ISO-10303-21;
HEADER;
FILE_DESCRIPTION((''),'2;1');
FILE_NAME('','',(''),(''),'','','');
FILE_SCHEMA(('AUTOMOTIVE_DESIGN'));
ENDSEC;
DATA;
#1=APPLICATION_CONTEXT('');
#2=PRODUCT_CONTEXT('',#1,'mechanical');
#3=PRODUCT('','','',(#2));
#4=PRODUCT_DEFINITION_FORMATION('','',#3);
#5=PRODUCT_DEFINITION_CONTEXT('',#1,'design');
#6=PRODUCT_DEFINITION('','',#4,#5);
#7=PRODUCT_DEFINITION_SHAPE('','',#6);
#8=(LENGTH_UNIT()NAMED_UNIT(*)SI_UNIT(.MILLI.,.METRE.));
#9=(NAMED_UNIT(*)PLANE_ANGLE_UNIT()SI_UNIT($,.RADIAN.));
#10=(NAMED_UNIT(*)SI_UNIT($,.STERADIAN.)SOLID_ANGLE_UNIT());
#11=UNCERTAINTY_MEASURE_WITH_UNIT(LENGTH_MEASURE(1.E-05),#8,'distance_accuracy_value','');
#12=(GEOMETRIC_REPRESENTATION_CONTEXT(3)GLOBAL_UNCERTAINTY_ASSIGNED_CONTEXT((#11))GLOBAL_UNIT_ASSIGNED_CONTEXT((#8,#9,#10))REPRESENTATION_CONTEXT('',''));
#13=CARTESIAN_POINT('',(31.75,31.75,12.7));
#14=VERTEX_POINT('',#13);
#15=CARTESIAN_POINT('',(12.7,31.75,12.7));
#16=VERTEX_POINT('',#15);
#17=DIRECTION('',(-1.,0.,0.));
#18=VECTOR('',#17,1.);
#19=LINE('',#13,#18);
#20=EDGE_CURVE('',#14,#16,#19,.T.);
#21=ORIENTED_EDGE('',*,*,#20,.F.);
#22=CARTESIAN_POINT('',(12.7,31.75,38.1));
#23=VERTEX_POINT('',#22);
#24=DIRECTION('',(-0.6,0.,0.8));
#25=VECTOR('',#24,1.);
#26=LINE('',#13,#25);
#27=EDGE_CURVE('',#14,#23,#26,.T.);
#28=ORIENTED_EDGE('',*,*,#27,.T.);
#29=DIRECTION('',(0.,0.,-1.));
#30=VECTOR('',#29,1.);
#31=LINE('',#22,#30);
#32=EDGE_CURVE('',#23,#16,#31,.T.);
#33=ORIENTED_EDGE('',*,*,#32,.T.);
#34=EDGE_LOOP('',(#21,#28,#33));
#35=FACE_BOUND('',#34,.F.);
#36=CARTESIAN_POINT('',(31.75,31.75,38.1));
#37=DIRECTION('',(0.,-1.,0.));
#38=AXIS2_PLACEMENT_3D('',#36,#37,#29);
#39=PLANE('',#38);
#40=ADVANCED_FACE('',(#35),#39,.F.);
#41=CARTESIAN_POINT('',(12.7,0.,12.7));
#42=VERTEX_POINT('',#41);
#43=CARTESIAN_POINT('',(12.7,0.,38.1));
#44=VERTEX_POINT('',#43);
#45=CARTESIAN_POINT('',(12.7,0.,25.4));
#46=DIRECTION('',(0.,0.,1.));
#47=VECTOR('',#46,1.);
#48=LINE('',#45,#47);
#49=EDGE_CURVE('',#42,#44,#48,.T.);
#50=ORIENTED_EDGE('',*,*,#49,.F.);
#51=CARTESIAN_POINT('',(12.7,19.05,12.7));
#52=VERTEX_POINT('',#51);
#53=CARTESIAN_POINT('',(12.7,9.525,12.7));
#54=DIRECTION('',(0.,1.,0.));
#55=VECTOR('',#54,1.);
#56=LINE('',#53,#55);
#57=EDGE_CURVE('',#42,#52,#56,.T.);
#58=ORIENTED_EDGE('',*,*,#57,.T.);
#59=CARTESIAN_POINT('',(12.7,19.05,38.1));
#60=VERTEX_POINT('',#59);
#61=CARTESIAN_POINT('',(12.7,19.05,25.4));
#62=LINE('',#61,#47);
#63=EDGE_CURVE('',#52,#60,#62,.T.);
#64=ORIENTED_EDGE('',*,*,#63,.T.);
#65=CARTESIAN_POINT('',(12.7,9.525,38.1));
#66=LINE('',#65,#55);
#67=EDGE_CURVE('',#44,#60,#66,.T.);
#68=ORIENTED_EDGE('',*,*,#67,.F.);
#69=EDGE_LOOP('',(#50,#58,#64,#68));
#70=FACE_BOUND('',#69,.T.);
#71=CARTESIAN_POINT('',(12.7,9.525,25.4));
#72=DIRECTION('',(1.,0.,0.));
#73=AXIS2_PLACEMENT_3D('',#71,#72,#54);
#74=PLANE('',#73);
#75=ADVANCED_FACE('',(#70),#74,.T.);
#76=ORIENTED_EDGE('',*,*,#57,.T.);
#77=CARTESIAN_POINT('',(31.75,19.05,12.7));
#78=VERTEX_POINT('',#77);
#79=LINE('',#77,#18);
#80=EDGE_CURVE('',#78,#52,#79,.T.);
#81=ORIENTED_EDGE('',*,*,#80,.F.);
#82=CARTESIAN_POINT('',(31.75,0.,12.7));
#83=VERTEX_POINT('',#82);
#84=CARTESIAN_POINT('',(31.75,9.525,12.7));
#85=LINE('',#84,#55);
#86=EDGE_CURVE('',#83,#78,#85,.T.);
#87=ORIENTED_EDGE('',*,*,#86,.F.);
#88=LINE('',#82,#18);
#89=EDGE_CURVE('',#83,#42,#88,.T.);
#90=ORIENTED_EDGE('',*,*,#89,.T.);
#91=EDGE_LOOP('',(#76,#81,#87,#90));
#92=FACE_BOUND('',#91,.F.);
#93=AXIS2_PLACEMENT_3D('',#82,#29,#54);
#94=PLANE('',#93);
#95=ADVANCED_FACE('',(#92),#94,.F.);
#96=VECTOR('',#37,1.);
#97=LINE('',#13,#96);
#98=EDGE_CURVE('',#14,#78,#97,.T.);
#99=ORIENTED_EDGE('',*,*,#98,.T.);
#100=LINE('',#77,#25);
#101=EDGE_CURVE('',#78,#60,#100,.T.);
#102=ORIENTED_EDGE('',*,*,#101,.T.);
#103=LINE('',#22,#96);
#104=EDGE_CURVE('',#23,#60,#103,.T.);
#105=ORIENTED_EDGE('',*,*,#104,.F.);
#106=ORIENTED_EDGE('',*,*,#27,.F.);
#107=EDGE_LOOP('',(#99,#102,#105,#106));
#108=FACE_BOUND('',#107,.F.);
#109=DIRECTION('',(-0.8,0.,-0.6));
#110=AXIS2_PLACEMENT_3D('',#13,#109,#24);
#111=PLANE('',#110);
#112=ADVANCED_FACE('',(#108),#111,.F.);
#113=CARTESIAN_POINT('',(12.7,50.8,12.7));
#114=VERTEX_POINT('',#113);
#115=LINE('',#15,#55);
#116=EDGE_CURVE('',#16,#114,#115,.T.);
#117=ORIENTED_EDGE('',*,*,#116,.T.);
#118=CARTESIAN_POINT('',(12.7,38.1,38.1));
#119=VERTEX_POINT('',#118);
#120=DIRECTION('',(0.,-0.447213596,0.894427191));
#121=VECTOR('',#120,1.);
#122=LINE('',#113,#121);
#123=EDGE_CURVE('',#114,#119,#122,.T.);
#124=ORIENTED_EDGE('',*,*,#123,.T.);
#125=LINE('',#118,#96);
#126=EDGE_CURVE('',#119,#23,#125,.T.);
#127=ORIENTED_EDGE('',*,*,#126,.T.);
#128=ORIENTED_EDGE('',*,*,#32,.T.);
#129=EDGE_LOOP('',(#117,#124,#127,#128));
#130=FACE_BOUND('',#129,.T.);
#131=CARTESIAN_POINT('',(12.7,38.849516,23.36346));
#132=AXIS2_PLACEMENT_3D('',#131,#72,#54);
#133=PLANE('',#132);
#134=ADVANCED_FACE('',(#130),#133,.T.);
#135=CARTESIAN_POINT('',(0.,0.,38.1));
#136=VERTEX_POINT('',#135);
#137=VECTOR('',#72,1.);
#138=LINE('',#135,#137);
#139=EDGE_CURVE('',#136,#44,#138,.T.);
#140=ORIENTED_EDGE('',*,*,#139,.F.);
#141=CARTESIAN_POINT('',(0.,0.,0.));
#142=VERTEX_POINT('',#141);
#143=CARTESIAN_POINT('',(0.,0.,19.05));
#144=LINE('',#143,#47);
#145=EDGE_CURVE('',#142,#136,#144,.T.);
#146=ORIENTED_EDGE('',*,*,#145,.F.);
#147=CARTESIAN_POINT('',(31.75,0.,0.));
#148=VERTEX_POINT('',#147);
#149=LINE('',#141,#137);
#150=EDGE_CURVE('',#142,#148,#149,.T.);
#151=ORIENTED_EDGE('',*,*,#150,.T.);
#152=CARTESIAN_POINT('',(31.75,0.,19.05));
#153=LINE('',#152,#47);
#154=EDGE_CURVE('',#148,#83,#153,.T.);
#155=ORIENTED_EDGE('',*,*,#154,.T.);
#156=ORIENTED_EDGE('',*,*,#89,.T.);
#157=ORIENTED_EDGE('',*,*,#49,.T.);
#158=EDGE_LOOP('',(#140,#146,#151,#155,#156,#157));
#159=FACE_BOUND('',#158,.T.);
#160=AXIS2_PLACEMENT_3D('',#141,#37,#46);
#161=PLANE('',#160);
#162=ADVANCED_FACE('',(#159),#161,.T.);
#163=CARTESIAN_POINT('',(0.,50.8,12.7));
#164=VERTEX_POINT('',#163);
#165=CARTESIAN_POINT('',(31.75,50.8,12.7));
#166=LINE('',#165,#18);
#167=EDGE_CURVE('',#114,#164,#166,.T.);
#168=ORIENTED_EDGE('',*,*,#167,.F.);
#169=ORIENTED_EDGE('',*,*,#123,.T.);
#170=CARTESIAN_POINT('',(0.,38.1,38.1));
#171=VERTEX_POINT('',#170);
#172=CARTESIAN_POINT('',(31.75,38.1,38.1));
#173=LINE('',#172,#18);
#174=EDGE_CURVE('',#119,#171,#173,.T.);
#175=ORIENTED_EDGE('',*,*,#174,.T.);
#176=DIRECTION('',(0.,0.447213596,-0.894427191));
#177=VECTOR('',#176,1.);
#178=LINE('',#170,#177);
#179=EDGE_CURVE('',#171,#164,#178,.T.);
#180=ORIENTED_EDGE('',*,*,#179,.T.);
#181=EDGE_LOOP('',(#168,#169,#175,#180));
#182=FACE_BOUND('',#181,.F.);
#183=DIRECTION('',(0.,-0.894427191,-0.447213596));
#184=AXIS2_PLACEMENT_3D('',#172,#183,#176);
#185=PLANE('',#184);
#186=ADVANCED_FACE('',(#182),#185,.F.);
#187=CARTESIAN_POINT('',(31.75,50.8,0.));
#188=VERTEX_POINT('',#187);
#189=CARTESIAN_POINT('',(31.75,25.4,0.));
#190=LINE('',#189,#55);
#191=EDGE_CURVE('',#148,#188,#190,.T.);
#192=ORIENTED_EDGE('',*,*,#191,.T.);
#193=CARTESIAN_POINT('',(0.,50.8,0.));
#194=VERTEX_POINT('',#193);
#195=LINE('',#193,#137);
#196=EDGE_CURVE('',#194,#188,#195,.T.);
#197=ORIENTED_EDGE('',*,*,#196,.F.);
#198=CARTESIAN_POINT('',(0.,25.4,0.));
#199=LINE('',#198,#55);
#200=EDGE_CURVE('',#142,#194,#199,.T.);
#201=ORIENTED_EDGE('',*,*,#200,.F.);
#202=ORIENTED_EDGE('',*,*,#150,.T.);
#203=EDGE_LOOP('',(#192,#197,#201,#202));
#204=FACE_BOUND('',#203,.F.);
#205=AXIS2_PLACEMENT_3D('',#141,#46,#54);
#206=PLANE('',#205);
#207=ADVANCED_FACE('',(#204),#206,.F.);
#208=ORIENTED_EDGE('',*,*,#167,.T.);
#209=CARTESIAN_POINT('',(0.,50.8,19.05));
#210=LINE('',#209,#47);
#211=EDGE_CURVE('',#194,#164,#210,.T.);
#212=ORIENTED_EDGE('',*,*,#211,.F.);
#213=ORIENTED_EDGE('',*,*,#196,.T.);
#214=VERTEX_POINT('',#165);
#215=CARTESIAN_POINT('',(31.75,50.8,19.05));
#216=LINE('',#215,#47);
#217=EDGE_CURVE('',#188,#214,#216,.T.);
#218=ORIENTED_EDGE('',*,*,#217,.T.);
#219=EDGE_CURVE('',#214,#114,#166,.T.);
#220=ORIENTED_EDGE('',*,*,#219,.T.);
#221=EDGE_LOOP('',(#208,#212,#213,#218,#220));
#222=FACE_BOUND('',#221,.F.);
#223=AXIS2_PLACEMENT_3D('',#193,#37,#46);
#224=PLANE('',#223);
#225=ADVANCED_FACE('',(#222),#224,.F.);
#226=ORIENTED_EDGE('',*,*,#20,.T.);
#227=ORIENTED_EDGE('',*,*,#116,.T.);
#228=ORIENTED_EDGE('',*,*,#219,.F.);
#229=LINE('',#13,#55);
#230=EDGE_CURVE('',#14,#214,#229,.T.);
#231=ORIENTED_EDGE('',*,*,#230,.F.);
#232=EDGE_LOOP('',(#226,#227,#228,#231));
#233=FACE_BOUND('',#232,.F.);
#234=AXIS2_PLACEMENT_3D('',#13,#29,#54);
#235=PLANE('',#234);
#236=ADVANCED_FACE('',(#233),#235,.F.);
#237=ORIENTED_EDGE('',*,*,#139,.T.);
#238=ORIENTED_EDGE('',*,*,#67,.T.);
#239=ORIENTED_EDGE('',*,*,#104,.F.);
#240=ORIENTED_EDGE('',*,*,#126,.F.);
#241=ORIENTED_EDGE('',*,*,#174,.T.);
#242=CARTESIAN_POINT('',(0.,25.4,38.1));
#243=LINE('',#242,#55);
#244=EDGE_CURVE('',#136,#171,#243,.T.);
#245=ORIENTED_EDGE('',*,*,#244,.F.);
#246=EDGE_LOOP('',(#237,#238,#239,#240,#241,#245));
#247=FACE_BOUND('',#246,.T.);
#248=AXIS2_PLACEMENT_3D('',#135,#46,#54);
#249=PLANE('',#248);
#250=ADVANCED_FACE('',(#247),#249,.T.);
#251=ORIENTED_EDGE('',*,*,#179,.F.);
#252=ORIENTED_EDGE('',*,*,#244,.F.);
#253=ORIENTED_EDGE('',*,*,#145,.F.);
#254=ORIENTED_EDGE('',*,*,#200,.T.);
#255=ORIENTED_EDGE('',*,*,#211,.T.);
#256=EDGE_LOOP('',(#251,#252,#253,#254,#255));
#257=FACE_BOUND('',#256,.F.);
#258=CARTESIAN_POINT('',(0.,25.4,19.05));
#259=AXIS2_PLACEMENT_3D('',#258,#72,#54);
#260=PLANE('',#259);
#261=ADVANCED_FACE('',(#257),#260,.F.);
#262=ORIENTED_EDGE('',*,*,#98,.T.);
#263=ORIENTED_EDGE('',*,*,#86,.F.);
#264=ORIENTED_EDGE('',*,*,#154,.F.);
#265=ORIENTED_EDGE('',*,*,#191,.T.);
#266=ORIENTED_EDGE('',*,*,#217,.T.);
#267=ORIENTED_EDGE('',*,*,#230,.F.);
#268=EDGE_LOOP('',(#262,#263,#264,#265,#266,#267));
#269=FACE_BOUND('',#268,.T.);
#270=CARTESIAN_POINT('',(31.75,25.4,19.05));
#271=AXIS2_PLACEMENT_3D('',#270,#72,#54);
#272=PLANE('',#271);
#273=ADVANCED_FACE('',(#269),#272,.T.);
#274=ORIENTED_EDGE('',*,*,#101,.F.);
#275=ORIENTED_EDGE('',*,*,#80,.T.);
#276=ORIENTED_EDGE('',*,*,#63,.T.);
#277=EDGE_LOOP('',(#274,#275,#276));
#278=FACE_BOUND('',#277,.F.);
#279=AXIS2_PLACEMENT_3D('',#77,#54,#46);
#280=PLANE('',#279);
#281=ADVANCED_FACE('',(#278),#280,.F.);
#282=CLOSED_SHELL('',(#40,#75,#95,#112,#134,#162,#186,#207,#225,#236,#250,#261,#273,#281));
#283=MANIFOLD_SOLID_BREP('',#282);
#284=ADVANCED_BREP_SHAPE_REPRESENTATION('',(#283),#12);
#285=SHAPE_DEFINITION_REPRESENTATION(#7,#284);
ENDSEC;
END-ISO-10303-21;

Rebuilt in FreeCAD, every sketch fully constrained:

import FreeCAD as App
import Part
import Sketcher
from FreeCAD import Vector
Q = App.Units.Quantity


def add_polygon(sketch, points):
    """Adds a closed chain of lines whose ends are joined by coincident constraints."""
    first, n = sketch.GeometryCount, len(points)
    for a, b in zip(points, points[1:] + points[:1]):
        sketch.addGeometry(Part.LineSegment(App.Vector(*a, 0), App.Vector(*b, 0)), False)
    for i in range(n):
        sketch.addConstraint(Sketcher.Constraint("Coincident", first + i, 2, first + (i + 1) % n, 1))

doc = App.newDocument("Part")
body = doc.addObject("PartDesign::Body", "Body")

# Sketch on YZ plane
sketch1 = body.newObject("Sketcher::SketchObject", "Sketch")
sketch1.AttachmentSupport = (doc.getObject("YZ_Plane"), [""])
sketch1.MapMode = "FlatFace"
add_polygon(sketch1, [(0, 38), (0, 0), (51, 0), (51, 38)])  # lines 0-3
sketch1.addConstraint([
    Sketcher.Constraint("Vertical", 0),
    Sketcher.Constraint("Horizontal", 1),
    Sketcher.Constraint("Vertical", 2),
    Sketcher.Constraint("Horizontal", 3),
    Sketcher.Constraint("Coincident", 0, 2, -1, 1),
    Sketcher.Constraint("DistanceX", 1, 1, 1, 2, Q("2 in")),
    Sketcher.Constraint("DistanceY", 0, 2, 0, 1, Q("1.5 in")),
])
pad1 = body.newObject("PartDesign::Pad", "Pad")
pad1.Profile = sketch1
pad1.Length = Q("1.25 in")

# Sketch on YZ plane
sketch2 = body.newObject("Sketcher::SketchObject", "Sketch001")
sketch2.AttachmentSupport = (doc.getObject("YZ_Plane"), [""])
sketch2.MapMode = "FlatFace"
sketch2.AttachmentOffset = App.Placement(Vector(0, 0, 1.25 * 25.4), App.Rotation())
add_polygon(sketch2, [(51, 13), (51, 38), (38, 38)])  # lines 0-2
sketch2.addConstraint([
    Sketcher.Constraint("Vertical", 0),
    Sketcher.Constraint("Horizontal", 1),
    Sketcher.Constraint("DistanceY", 0, 1, 0, 2, Q("1 in")),
    Sketcher.Constraint("DistanceX", 1, 2, 1, 1, Q("0.5 in")),
    Sketcher.Constraint("DistanceX", -1, 1, 0, 2, Q("2 in")),
    Sketcher.Constraint("DistanceY", -1, 1, 0, 2, Q("1.5 in")),
])
pocket1 = body.newObject("PartDesign::Pocket", "Pocket")
pocket1.Profile = sketch2
pocket1.Length = Q("1.25 in")

# Sketch on YZ plane
sketch3 = body.newObject("Sketcher::SketchObject", "Sketch002")
sketch3.AttachmentSupport = (doc.getObject("YZ_Plane"), [""])
sketch3.MapMode = "FlatFace"
sketch3.AttachmentOffset = App.Placement(Vector(0, 0, 1.25 * 25.4), App.Rotation())
add_polygon(sketch3, [(32, 13), (51, 13), (38, 38), (32, 38)])  # lines 0-3
sketch3.addConstraint([
    Sketcher.Constraint("Horizontal", 0),
    Sketcher.Constraint("Horizontal", 2),
    Sketcher.Constraint("Vertical", 3),
    Sketcher.Constraint("DistanceY", 3, 2, 3, 1, Q("1 in")),
    Sketcher.Constraint("DistanceX", -1, 1, 0, 2, Q("2 in")),
    Sketcher.Constraint("DistanceX", 0, 1, 0, 2, Q("0.75 in")),
    Sketcher.Constraint("DistanceX", 2, 2, 2, 1, Q("0.25 in")),
    Sketcher.Constraint("DistanceY", -1, 1, 0, 2, Q("0.5 in")),
])
pocket2 = body.newObject("PartDesign::Pocket", "Pocket001")
pocket2.Profile = sketch3
pocket2.Length = Q("0.75 in")

# Sketch on XZ plane
sketch4 = body.newObject("Sketcher::SketchObject", "Sketch003")
sketch4.AttachmentSupport = (doc.getObject("XZ_Plane"), [""])
sketch4.MapMode = "FlatFace"
sketch4.AttachmentOffset = App.Placement(Vector(0, 0, -1.25 * 25.4), App.Rotation())
add_polygon(sketch4, [(32, 38), (32, 13), (13, 38)])  # lines 0-2
sketch4.addConstraint([
    Sketcher.Constraint("Vertical", 0),
    Sketcher.Constraint("Horizontal", 2),
    Sketcher.Constraint("DistanceY", 0, 2, 0, 1, Q("1 in")),
    Sketcher.Constraint("DistanceX", 2, 1, 2, 2, Q("0.75 in")),
    Sketcher.Constraint("DistanceY", -1, 1, 0, 2, Q("0.5 in")),
    Sketcher.Constraint("DistanceX", -1, 1, 1, 2, Q("0.5 in")),
])
pocket3 = body.newObject("PartDesign::Pocket", "Pocket002")
pocket3.Profile = sketch4
pocket3.Length = Q("0.5 in")
pocket3.Reversed = True

# Sketch on YZ plane
sketch5 = body.newObject("Sketcher::SketchObject", "Sketch004")
sketch5.AttachmentSupport = (doc.getObject("YZ_Plane"), [""])
sketch5.MapMode = "FlatFace"
sketch5.AttachmentOffset = App.Placement(Vector(0, 0, 1.25 * 25.4), App.Rotation())
add_polygon(sketch5, [(0, 38), (0, 13), (19, 13), (19, 38)])  # lines 0-3
sketch5.addConstraint([
    Sketcher.Constraint("Vertical", 0),
    Sketcher.Constraint("Horizontal", 1),
    Sketcher.Constraint("Vertical", 2),
    Sketcher.Constraint("Horizontal", 3),
    Sketcher.Constraint("PointOnObject", 0, 2, -2),
    Sketcher.Constraint("DistanceY", 0, 2, 0, 1, Q("1 in")),
    Sketcher.Constraint("DistanceX", 1, 1, 1, 2, Q("0.75 in")),
    Sketcher.Constraint("DistanceY", -1, 1, 0, 2, Q("0.5 in")),
])
pocket4 = body.newObject("PartDesign::Pocket", "Pocket003")
pocket4.Profile = sketch5
pocket4.Length = Q("0.75 in")

doc.recompute()
